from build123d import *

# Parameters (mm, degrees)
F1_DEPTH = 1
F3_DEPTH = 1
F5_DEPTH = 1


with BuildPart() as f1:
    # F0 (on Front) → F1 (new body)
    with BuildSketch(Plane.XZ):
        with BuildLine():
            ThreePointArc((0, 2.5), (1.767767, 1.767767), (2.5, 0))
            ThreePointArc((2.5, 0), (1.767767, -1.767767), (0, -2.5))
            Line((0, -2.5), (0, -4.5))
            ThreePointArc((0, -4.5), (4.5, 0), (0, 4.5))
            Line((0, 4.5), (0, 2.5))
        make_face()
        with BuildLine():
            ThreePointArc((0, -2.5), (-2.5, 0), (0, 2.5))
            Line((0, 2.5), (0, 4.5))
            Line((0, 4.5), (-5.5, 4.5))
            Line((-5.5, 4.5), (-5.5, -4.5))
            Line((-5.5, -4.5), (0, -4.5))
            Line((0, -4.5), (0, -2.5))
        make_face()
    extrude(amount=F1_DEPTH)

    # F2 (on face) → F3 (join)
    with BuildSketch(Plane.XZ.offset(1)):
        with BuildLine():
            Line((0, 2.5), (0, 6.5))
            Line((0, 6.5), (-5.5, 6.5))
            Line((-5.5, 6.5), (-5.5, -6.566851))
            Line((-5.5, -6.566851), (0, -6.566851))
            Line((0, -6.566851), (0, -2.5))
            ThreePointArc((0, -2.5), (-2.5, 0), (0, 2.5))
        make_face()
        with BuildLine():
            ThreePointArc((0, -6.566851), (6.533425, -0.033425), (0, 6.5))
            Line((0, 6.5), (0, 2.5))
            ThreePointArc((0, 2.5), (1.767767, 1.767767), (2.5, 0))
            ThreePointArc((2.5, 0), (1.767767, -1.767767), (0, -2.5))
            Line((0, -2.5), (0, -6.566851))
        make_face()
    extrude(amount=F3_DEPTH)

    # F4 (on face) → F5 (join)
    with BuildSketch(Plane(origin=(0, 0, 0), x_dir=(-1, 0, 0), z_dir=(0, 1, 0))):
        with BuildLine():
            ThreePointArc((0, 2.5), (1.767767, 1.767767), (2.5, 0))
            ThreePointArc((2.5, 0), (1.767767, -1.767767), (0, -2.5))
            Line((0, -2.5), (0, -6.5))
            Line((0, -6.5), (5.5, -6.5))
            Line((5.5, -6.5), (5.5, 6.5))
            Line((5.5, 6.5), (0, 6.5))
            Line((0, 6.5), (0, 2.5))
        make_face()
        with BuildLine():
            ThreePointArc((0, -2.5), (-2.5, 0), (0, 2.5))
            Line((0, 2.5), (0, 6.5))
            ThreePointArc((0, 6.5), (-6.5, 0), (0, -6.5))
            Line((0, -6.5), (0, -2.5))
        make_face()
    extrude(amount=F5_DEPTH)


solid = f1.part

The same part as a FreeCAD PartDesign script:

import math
import FreeCAD as App
import Part
import Sketcher
from FreeCAD import Vector

doc = App.newDocument("Part")
body = doc.addObject("PartDesign::Body", "Body")

# Sketch on XZ plane
sketch1 = body.newObject("Sketcher::SketchObject", "Sketch")
sketch1.AttachmentSupport = (doc.getObject("XZ_Plane"), [""])
sketch1.MapMode = "FlatFace"
sketch1.addGeometry(Part.ArcOfCircle(Part.Circle(Vector(0, 0, 0), Vector(0, 0, 1), 4.5), math.radians(-90), math.radians(90)), False)
sketch1.addGeometry(Part.LineSegment(Vector(0, 4.5, 0), Vector(-5.5, 4.5, 0)), False)
sketch1.addGeometry(Part.LineSegment(Vector(-5.5, 4.5, 0), Vector(-5.5, -4.5, 0)), False)
sketch1.addGeometry(Part.LineSegment(Vector(-5.5, -4.5, 0), Vector(0, -4.5, 0)), False)
sketch1.addGeometry(Part.ArcOfCircle(Part.Circle(Vector(0, 0, 0), Vector(0, 0, 1), 2.5), math.radians(0), math.radians(90)), False)
sketch1.addGeometry(Part.ArcOfCircle(Part.Circle(Vector(0, 0, 0), Vector(0, 0, 1), 2.5), math.radians(-90), math.radians(0)), False)
sketch1.addGeometry(Part.ArcOfCircle(Part.Circle(Vector(0, 0, 0), Vector(0, 0, 1), 2.5), math.radians(90), math.radians(270)), False)
sketch1.addConstraint(Sketcher.Constraint("Tangent", 0, 2, 1, 1))
sketch1.addConstraint(Sketcher.Constraint("Coincident", 1, 2, 2, 1))
sketch1.addConstraint(Sketcher.Constraint("Coincident", 2, 2, 3, 1))
sketch1.addConstraint(Sketcher.Constraint("Tangent", 3, 2, 0, 1))
sketch1.addConstraint(Sketcher.Constraint("Tangent", 4, 1, 5, 2))
sketch1.addConstraint(Sketcher.Constraint("Tangent", 5, 1, 6, 2))
sketch1.addConstraint(Sketcher.Constraint("Tangent", 6, 1, 4, 2))
sketch1.addConstraint(Sketcher.Constraint("Horizontal", 1))
sketch1.addConstraint(Sketcher.Constraint("Vertical", 2))
sketch1.addConstraint(Sketcher.Constraint("Horizontal", 3))
sketch1.addConstraint(Sketcher.Constraint("Coincident", 0, 3, -1, 1))
sketch1.addConstraint(Sketcher.Constraint("Coincident", 4, 3, -1, 1))
sketch1.addConstraint(Sketcher.Constraint("PointOnObject", 4, 1, -1))
sketch1.addConstraint(Sketcher.Constraint("PointOnObject", 5, 1, -2))
sketch1.addConstraint(Sketcher.Constraint("PointOnObject", 6, 1, -2))
sketch1.addConstraint(Sketcher.Constraint("Radius", 0, 4.5))
sketch1.addConstraint(Sketcher.Constraint("Radius", 4, 2.5))
sketch1.addConstraint(Sketcher.Constraint("DistanceX", 1, 2, 1, 1, 5.5))
pad1 = body.newObject("PartDesign::Pad", "Pad")
pad1.Profile = sketch1
pad1.Length = 1

# Sketch on XZ plane
sketch2 = body.newObject("Sketcher::SketchObject", "Sketch001")
sketch2.AttachmentSupport = (doc.getObject("XZ_Plane"), [""])
sketch2.MapMode = "FlatFace"
sketch2.AttachmentOffset = App.Placement(Vector(0, 0, 1), App.Rotation())
sketch2.addGeometry(Part.LineSegment(Vector(0, 6.5, 0), Vector(-5.5, 6.5, 0)), False)
sketch2.addGeometry(Part.LineSegment(Vector(-5.5, 6.5, 0), Vector(-5.5, -6.6, 0)), False)
sketch2.addGeometry(Part.LineSegment(Vector(-5.5, -6.6, 0), Vector(0, -6.6, 0)), False)
sketch2.addGeometry(Part.ArcOfCircle(Part.Circle(Vector(0, 0, 0), Vector(0, 0, 1), 6.5), math.radians(-90), math.radians(90)), False)
sketch2.addGeometry(Part.ArcOfCircle(Part.Circle(Vector(0, 0, 0), Vector(0, 0, 1), 2.5), math.radians(90), math.radians(270)), False)
sketch2.addGeometry(Part.ArcOfCircle(Part.Circle(Vector(0, 0, 0), Vector(0, 0, 1), 2.5), math.radians(0), math.radians(90)), False)
sketch2.addGeometry(Part.ArcOfCircle(Part.Circle(Vector(0, 0, 0), Vector(0, 0, 1), 2.5), math.radians(-90), math.radians(0)), False)
sketch2.addConstraint(Sketcher.Constraint("Coincident", 0, 2, 1, 1))
sketch2.addConstraint(Sketcher.Constraint("Coincident", 1, 2, 2, 1))
sketch2.addConstraint(Sketcher.Constraint("Tangent", 2, 2, 3, 1))
sketch2.addConstraint(Sketcher.Constraint("Tangent", 3, 2, 0, 1))
sketch2.addConstraint(Sketcher.Constraint("Tangent", 4, 1, 5, 2))
sketch2.addConstraint(Sketcher.Constraint("Tangent", 5, 1, 6, 2))
sketch2.addConstraint(Sketcher.Constraint("Tangent", 6, 1, 4, 2))
sketch2.addConstraint(Sketcher.Constraint("Horizontal", 0))
sketch2.addConstraint(Sketcher.Constraint("Vertical", 1))
sketch2.addConstraint(Sketcher.Constraint("Horizontal", 2))
sketch2.addConstraint(Sketcher.Constraint("Coincident", 4, 3, -1, 1))
sketch2.addConstraint(Sketcher.Constraint("PointOnObject", 3, 3, -2))
sketch2.addConstraint(Sketcher.Constraint("PointOnObject", 4, 1, -2))
sketch2.addConstraint(Sketcher.Constraint("PointOnObject", 5, 1, -1))
sketch2.addConstraint(Sketcher.Constraint("PointOnObject", 6, 1, -2))
sketch2.addConstraint(Sketcher.Constraint("Radius", 4, 2.5))
sketch2.addConstraint(Sketcher.Constraint("DistanceX", 0, 2, 0, 1, 5.5))
sketch2.addConstraint(Sketcher.Constraint("DistanceY", 4, 1, 3, 2, 4.0))
sketch2.addConstraint(Sketcher.Constraint("Radius", 3, 6.533425))
pad2 = body.newObject("PartDesign::Pad", "Pad001")
pad2.Profile = sketch2
pad2.Length = 1

# Sketch on XZ plane
sketch3 = body.newObject("Sketcher::SketchObject", "Sketch002")
sketch3.AttachmentSupport = (doc.getObject("XZ_Plane"), [""])
sketch3.MapMode = "FlatFace"
sketch3.addGeometry(Part.LineSegment(Vector(0, -6.5, 0), Vector(-5.5, -6.5, 0)), False)
sketch3.addGeometry(Part.LineSegment(Vector(-5.5, -6.5, 0), Vector(-5.5, 6.5, 0)), False)
sketch3.addGeometry(Part.LineSegment(Vector(-5.5, 6.5, 0), Vector(0, 6.5, 0)), False)
sketch3.addGeometry(Part.ArcOfCircle(Part.Circle(Vector(0, 0, 0), Vector(0, 0, 1), 6.5), math.radians(-90), math.radians(90)), False)
sketch3.addGeometry(Part.ArcOfCircle(Part.Circle(Vector(0, 0, 0), Vector(0, 0, 1), 2.5), math.radians(90), math.radians(180)), False)
sketch3.addGeometry(Part.ArcOfCircle(Part.Circle(Vector(0, 0, 0), Vector(0, 0, 1), 2.5), math.radians(180), math.radians(270)), False)
sketch3.addGeometry(Part.ArcOfCircle(Part.Circle(Vector(0, 0, 0), Vector(0, 0, 1), 2.5), math.radians(-90), math.radians(90)), False)
sketch3.addConstraint(Sketcher.Constraint("Coincident", 0, 2, 1, 1))
sketch3.addConstraint(Sketcher.Constraint("Coincident", 1, 2, 2, 1))
sketch3.addConstraint(Sketcher.Constraint("Tangent", 2, 2, 3, 2))
sketch3.addConstraint(Sketcher.Constraint("Tangent", 3, 1, 0, 1))
sketch3.addConstraint(Sketcher.Constraint("Tangent", 4, 2, 5, 1))
sketch3.addConstraint(Sketcher.Constraint("Tangent", 5, 2, 6, 1))
sketch3.addConstraint(Sketcher.Constraint("Tangent", 6, 2, 4, 1))
sketch3.addConstraint(Sketcher.Constraint("Horizontal", 0))
sketch3.addConstraint(Sketcher.Constraint("Vertical", 1))
sketch3.addConstraint(Sketcher.Constraint("Horizontal", 2))
sketch3.addConstraint(Sketcher.Constraint("Coincident", 3, 3, -1, 1))
sketch3.addConstraint(Sketcher.Constraint("Coincident", 4, 3, -1, 1))
sketch3.addConstraint(Sketcher.Constraint("PointOnObject", 4, 2, -1))
sketch3.addConstraint(Sketcher.Constraint("PointOnObject", 5, 2, -2))
sketch3.addConstraint(Sketcher.Constraint("PointOnObject", 6, 2, -2))
sketch3.addConstraint(Sketcher.Constraint("Radius", 3, 6.5))
sketch3.addConstraint(Sketcher.Constraint("Radius", 4, 2.5))
sketch3.addConstraint(Sketcher.Constraint("DistanceX", 0, 2, 0, 1, 5.5))
pad3 = body.newObject("PartDesign::Pad", "Pad002")
pad3.Profile = sketch3
pad3.Length = 1
pad3.Reversed = True

doc.recompute()
